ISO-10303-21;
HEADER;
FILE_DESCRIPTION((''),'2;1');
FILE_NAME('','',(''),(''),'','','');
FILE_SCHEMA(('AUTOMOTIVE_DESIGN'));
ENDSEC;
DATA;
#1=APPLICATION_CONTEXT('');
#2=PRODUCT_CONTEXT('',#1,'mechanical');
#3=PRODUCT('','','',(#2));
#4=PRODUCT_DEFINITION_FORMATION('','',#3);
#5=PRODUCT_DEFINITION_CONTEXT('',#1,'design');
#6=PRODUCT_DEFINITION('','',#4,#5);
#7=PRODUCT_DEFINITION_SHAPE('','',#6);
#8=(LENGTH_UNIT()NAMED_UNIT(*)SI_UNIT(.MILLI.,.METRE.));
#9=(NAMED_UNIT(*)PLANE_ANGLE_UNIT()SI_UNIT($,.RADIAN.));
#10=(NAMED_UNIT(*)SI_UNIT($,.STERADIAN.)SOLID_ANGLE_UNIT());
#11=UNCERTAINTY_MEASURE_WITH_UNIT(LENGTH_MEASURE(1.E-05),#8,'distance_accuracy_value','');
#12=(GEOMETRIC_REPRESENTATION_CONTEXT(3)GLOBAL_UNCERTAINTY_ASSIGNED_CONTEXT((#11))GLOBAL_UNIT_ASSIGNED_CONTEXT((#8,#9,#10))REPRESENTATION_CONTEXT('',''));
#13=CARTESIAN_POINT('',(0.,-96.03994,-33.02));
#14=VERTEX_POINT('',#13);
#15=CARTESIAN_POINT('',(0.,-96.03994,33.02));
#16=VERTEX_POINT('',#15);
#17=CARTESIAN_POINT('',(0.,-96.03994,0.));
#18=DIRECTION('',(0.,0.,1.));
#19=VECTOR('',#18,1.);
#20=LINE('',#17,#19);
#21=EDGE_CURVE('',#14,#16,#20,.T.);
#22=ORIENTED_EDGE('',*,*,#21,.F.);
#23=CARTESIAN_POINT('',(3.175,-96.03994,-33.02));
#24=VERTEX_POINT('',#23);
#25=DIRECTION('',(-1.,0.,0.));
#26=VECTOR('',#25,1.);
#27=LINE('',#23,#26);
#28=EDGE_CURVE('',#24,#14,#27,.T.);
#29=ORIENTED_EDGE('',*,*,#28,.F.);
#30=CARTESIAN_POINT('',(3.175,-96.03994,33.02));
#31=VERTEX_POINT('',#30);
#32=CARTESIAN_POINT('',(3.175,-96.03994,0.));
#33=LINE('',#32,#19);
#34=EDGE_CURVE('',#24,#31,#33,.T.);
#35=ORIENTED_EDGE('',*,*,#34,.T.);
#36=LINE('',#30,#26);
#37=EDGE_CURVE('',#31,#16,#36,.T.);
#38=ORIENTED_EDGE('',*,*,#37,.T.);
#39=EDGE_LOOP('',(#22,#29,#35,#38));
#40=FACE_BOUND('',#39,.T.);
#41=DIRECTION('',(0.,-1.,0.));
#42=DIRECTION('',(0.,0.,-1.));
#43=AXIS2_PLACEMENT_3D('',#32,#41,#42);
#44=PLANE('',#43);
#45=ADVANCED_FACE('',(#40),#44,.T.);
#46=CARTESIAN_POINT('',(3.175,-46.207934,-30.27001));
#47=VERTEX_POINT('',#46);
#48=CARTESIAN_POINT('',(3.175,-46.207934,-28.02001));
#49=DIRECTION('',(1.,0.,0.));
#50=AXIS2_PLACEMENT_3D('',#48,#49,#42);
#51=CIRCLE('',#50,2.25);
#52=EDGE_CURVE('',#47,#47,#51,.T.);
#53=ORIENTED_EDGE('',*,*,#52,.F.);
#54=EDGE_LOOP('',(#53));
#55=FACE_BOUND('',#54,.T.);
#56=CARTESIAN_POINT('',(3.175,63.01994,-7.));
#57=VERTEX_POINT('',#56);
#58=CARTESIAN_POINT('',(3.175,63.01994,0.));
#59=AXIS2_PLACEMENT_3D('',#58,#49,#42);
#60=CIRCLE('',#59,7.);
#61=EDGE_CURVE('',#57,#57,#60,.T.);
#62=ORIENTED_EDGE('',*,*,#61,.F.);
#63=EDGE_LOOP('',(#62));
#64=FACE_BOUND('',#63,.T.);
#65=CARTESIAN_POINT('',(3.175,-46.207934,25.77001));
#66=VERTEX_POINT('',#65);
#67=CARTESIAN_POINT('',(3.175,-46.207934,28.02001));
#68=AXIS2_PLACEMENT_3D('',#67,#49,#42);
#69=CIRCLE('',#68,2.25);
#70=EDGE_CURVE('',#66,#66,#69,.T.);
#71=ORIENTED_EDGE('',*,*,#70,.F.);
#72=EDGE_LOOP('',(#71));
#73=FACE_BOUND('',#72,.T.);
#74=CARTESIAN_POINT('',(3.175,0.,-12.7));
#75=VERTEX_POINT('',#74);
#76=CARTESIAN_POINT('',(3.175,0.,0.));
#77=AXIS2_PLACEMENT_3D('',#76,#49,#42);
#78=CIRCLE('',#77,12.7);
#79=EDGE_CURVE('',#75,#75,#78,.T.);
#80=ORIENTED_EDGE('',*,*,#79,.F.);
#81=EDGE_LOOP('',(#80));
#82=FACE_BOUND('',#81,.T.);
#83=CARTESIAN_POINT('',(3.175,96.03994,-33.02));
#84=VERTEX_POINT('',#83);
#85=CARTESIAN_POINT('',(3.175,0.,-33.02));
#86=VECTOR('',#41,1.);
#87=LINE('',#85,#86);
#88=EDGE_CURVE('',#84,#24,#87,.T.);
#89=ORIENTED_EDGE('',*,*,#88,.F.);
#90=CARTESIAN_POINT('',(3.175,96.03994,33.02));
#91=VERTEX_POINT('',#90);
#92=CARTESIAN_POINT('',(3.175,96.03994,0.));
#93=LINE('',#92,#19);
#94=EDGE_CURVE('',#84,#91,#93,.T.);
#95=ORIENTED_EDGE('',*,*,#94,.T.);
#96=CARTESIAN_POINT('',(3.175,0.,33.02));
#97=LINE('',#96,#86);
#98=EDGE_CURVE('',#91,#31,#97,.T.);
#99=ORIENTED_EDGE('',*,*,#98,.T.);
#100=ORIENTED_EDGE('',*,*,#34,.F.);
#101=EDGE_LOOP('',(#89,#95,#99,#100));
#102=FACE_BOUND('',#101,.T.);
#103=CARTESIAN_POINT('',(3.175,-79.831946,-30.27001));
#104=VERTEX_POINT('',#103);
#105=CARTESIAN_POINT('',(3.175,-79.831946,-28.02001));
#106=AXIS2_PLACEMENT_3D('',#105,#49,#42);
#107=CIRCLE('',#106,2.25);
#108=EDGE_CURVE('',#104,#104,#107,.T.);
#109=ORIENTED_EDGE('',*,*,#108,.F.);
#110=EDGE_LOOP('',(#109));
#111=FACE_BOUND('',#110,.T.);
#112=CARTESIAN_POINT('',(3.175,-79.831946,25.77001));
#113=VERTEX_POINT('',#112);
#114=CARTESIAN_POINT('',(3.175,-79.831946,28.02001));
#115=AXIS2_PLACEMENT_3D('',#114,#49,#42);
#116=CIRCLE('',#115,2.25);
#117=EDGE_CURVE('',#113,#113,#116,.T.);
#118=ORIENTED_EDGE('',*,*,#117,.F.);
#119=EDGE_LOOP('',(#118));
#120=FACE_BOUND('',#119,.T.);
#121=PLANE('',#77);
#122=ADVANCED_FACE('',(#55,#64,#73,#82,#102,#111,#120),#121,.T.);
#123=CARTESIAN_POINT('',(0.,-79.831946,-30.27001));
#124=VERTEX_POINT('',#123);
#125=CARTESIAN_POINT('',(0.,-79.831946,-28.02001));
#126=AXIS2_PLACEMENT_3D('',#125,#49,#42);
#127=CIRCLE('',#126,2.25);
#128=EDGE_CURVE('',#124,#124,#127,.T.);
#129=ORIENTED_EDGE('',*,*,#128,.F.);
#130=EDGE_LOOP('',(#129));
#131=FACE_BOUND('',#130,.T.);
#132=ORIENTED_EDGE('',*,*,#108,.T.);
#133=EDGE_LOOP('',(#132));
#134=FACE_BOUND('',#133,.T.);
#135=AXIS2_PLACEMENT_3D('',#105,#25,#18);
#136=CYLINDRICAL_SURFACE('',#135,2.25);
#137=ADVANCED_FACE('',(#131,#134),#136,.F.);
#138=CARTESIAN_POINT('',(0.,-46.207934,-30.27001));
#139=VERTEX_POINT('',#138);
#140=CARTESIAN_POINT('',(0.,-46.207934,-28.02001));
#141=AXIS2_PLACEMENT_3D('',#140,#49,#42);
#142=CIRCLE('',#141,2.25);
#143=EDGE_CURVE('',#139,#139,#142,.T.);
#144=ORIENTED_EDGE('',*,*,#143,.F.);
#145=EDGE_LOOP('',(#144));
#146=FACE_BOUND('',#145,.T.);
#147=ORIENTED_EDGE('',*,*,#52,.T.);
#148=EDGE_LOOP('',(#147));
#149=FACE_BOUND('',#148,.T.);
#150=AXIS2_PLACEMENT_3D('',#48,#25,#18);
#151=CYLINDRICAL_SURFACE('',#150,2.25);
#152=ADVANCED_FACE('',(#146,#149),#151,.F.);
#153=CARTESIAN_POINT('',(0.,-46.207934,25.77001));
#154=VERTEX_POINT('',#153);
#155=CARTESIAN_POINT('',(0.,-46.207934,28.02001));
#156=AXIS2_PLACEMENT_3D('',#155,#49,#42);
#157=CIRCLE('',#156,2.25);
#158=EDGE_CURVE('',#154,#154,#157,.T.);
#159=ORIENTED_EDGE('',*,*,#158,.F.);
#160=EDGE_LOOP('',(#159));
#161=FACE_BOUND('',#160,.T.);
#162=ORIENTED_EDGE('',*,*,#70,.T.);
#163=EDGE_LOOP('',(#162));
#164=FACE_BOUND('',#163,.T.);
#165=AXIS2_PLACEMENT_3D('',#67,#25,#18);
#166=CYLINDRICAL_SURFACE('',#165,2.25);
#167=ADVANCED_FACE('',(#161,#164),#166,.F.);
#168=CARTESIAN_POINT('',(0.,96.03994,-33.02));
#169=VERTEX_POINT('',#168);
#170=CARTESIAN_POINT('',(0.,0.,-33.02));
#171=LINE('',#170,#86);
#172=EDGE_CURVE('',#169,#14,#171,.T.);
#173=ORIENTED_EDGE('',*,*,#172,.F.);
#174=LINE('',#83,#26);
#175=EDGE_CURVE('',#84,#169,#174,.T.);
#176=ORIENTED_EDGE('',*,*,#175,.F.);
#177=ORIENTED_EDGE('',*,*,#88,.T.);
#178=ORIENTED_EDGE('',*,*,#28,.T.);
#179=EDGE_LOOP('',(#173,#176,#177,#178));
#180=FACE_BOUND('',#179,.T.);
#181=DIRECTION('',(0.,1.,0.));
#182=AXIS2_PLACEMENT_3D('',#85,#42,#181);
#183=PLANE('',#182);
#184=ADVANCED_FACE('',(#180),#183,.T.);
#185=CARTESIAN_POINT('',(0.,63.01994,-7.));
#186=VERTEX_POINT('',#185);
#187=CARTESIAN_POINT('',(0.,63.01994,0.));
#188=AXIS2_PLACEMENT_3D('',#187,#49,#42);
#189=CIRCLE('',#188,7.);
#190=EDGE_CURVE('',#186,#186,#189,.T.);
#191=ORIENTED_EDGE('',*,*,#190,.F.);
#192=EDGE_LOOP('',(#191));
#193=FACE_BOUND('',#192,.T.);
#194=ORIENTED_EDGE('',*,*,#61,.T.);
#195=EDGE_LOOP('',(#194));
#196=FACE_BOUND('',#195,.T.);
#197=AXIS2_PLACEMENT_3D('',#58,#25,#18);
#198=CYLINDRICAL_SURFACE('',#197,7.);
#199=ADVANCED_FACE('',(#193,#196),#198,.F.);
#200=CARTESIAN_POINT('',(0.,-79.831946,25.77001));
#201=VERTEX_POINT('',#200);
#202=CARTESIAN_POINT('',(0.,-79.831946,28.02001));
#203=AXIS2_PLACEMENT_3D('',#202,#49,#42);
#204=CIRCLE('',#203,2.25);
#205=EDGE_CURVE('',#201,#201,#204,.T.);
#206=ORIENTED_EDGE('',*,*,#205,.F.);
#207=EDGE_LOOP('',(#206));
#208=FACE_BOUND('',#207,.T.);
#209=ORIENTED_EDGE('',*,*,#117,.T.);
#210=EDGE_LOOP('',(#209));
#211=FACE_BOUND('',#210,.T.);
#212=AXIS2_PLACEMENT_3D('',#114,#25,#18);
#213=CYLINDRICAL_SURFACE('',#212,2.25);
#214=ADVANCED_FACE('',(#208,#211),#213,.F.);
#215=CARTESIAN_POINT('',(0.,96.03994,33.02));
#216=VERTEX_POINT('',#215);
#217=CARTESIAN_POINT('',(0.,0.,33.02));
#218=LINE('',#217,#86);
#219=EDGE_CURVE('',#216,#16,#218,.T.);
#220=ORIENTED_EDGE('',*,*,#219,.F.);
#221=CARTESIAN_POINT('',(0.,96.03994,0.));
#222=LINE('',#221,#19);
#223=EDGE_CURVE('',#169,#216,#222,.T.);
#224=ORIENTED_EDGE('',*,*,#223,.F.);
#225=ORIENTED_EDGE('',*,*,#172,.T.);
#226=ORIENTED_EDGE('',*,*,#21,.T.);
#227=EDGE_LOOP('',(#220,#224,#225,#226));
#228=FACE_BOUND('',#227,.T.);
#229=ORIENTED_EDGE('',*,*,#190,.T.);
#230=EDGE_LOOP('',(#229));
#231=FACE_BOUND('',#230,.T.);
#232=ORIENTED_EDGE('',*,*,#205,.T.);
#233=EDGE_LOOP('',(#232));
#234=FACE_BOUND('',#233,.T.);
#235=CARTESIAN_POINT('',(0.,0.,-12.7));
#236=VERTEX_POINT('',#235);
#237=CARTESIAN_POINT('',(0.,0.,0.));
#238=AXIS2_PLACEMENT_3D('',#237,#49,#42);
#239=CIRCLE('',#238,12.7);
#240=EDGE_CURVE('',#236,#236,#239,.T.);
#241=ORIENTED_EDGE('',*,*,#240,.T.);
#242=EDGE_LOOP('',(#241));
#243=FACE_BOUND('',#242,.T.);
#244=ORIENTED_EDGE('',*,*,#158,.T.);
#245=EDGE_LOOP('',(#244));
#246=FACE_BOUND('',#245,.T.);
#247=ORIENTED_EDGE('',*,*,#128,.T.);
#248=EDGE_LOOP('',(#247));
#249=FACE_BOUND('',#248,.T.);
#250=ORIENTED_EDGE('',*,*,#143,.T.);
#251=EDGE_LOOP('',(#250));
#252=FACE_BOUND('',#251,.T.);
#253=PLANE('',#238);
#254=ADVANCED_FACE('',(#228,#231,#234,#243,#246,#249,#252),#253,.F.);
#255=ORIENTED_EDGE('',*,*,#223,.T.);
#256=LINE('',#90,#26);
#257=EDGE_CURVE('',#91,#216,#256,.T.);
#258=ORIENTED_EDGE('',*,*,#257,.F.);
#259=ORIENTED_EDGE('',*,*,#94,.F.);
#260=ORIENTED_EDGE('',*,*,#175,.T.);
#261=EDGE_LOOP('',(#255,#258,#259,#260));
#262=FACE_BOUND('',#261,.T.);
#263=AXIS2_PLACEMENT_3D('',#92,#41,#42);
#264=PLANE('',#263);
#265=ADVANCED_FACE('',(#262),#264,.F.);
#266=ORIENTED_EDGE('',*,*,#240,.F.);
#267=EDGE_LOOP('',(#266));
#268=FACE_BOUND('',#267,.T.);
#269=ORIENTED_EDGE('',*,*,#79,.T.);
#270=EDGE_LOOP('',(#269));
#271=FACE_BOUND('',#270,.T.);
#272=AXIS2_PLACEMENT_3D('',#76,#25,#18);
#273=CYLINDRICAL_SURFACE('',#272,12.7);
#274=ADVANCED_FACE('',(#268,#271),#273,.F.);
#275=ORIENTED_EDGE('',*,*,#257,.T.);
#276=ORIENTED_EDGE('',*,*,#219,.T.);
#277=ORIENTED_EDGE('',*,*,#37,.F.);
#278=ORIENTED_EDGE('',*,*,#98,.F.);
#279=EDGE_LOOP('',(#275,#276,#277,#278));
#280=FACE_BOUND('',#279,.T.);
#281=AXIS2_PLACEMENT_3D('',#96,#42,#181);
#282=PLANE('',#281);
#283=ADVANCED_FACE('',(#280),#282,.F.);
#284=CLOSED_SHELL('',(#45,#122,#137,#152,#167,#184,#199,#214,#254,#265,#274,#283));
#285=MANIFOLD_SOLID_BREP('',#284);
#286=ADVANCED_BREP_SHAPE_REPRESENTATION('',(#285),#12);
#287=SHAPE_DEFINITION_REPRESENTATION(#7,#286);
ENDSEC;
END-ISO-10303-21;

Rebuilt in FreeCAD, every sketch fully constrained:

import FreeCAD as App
import Part
import Sketcher
Q = App.Units.Quantity


def add_polygon(sketch, points):
    """Adds a closed chain of lines whose ends are joined by coincident constraints."""
    first, n = sketch.GeometryCount, len(points)
    for a, b in zip(points, points[1:] + points[:1]):
        sketch.addGeometry(Part.LineSegment(App.Vector(*a, 0), App.Vector(*b, 0)), False)
    for i in range(n):
        sketch.addConstraint(Sketcher.Constraint("Coincident", first + i, 2, first + (i + 1) % n, 1))

doc = App.newDocument("Part")
body = doc.addObject("PartDesign::Body", "Body")

sketch1 = doc.addObject("Sketcher::SketchObject", "Sketch")
body.addObject(sketch1)
sketch1.AttachmentSupport = (doc.YZ_Plane, [""])
sketch1.MapMode = "FlatFace"
add_polygon(sketch1, [(-96, 33), (-96, -33), (96, -33), (96, 33)])
sketch1.addGeometry(Part.Circle(App.Vector(-79.8, -28, 0), App.Vector(0, 0, 1), 2.2), False)
sketch1.addGeometry(Part.Circle(App.Vector(-46.2, -28, 0), App.Vector(0, 0, 1), 2.2), False)
sketch1.addGeometry(Part.Circle(App.Vector(-79.8, 28, 0), App.Vector(0, 0, 1), 2.2), False)
sketch1.addGeometry(Part.Circle(App.Vector(-46.2, 28, 0), App.Vector(0, 0, 1), 2.2), False)
sketch1.addGeometry(Part.Circle(App.Vector(0, 0, 0), App.Vector(0, 0, 1), 12.7), False)
sketch1.addGeometry(Part.Circle(App.Vector(63, 0, 0), App.Vector(0, 0, 1), 7), False)
sketch1.addConstraint(Sketcher.Constraint("Vertical", 0))
sketch1.addConstraint(Sketcher.Constraint("Horizontal", 1))
sketch1.addConstraint(Sketcher.Constraint("Vertical", 2))
sketch1.addConstraint(Sketcher.Constraint("Horizontal", 3))
sketch1.addConstraint(Sketcher.Constraint("Coincident", 8, 3, -1, 1))
sketch1.addConstraint(Sketcher.Constraint("Equal", 4, 5))
sketch1.addConstraint(Sketcher.Constraint("Equal", 5, 6))
sketch1.addConstraint(Sketcher.Constraint("Equal", 6, 7))
sketch1.addConstraint(Sketcher.Constraint("Symmetric", 0, 2, 2, 2, -1, 1))
sketch1.addConstraint(Sketcher.Constraint("Symmetric", 4, 3, 6, 3, -1))
sketch1.addConstraint(Sketcher.Constraint("Symmetric", 5, 3, 7, 3, -1))
sketch1.addConstraint(Sketcher.Constraint("PointOnObject", 9, 3, -1))
sketch1.addConstraint(Sketcher.Constraint("Horizontal", 4, 3, 5, 3))
sketch1.addConstraint(Sketcher.Constraint("Diameter", 8, Q("1 in")))
sketch1.addConstraint(Sketcher.Constraint("DistanceY", 0, 2, 0, 1, Q("2.6 in")))
sketch1.addConstraint(Sketcher.Constraint("DistanceX", 9, 3, 1, 2, Q("1.3 in")))
sketch1.addConstraint(Sketcher.Constraint("Diameter", 4, 4.5))
sketch1.addConstraint(Sketcher.Constraint("Diameter", 9, 14.0))
sketch1.addConstraint(Sketcher.Constraint("DistanceX", 1, 1, 1, 2, Q("7.5622 in")))
sketch1.addConstraint(Sketcher.Constraint("DistanceY", 4, 3, 6, 3, Q("2.2063 in")))
sketch1.addConstraint(Sketcher.Constraint("DistanceX", 4, 3, -1, 1, 79.831946))
sketch1.addConstraint(Sketcher.Constraint("DistanceX", 5, 3, -1, 1, 46.207934))
pad1 = doc.addObject("PartDesign::Pad", "Pad")
body.addObject(pad1)
pad1.Profile = sketch1
pad1.Length = Q("0.125 in")

doc.recompute()
